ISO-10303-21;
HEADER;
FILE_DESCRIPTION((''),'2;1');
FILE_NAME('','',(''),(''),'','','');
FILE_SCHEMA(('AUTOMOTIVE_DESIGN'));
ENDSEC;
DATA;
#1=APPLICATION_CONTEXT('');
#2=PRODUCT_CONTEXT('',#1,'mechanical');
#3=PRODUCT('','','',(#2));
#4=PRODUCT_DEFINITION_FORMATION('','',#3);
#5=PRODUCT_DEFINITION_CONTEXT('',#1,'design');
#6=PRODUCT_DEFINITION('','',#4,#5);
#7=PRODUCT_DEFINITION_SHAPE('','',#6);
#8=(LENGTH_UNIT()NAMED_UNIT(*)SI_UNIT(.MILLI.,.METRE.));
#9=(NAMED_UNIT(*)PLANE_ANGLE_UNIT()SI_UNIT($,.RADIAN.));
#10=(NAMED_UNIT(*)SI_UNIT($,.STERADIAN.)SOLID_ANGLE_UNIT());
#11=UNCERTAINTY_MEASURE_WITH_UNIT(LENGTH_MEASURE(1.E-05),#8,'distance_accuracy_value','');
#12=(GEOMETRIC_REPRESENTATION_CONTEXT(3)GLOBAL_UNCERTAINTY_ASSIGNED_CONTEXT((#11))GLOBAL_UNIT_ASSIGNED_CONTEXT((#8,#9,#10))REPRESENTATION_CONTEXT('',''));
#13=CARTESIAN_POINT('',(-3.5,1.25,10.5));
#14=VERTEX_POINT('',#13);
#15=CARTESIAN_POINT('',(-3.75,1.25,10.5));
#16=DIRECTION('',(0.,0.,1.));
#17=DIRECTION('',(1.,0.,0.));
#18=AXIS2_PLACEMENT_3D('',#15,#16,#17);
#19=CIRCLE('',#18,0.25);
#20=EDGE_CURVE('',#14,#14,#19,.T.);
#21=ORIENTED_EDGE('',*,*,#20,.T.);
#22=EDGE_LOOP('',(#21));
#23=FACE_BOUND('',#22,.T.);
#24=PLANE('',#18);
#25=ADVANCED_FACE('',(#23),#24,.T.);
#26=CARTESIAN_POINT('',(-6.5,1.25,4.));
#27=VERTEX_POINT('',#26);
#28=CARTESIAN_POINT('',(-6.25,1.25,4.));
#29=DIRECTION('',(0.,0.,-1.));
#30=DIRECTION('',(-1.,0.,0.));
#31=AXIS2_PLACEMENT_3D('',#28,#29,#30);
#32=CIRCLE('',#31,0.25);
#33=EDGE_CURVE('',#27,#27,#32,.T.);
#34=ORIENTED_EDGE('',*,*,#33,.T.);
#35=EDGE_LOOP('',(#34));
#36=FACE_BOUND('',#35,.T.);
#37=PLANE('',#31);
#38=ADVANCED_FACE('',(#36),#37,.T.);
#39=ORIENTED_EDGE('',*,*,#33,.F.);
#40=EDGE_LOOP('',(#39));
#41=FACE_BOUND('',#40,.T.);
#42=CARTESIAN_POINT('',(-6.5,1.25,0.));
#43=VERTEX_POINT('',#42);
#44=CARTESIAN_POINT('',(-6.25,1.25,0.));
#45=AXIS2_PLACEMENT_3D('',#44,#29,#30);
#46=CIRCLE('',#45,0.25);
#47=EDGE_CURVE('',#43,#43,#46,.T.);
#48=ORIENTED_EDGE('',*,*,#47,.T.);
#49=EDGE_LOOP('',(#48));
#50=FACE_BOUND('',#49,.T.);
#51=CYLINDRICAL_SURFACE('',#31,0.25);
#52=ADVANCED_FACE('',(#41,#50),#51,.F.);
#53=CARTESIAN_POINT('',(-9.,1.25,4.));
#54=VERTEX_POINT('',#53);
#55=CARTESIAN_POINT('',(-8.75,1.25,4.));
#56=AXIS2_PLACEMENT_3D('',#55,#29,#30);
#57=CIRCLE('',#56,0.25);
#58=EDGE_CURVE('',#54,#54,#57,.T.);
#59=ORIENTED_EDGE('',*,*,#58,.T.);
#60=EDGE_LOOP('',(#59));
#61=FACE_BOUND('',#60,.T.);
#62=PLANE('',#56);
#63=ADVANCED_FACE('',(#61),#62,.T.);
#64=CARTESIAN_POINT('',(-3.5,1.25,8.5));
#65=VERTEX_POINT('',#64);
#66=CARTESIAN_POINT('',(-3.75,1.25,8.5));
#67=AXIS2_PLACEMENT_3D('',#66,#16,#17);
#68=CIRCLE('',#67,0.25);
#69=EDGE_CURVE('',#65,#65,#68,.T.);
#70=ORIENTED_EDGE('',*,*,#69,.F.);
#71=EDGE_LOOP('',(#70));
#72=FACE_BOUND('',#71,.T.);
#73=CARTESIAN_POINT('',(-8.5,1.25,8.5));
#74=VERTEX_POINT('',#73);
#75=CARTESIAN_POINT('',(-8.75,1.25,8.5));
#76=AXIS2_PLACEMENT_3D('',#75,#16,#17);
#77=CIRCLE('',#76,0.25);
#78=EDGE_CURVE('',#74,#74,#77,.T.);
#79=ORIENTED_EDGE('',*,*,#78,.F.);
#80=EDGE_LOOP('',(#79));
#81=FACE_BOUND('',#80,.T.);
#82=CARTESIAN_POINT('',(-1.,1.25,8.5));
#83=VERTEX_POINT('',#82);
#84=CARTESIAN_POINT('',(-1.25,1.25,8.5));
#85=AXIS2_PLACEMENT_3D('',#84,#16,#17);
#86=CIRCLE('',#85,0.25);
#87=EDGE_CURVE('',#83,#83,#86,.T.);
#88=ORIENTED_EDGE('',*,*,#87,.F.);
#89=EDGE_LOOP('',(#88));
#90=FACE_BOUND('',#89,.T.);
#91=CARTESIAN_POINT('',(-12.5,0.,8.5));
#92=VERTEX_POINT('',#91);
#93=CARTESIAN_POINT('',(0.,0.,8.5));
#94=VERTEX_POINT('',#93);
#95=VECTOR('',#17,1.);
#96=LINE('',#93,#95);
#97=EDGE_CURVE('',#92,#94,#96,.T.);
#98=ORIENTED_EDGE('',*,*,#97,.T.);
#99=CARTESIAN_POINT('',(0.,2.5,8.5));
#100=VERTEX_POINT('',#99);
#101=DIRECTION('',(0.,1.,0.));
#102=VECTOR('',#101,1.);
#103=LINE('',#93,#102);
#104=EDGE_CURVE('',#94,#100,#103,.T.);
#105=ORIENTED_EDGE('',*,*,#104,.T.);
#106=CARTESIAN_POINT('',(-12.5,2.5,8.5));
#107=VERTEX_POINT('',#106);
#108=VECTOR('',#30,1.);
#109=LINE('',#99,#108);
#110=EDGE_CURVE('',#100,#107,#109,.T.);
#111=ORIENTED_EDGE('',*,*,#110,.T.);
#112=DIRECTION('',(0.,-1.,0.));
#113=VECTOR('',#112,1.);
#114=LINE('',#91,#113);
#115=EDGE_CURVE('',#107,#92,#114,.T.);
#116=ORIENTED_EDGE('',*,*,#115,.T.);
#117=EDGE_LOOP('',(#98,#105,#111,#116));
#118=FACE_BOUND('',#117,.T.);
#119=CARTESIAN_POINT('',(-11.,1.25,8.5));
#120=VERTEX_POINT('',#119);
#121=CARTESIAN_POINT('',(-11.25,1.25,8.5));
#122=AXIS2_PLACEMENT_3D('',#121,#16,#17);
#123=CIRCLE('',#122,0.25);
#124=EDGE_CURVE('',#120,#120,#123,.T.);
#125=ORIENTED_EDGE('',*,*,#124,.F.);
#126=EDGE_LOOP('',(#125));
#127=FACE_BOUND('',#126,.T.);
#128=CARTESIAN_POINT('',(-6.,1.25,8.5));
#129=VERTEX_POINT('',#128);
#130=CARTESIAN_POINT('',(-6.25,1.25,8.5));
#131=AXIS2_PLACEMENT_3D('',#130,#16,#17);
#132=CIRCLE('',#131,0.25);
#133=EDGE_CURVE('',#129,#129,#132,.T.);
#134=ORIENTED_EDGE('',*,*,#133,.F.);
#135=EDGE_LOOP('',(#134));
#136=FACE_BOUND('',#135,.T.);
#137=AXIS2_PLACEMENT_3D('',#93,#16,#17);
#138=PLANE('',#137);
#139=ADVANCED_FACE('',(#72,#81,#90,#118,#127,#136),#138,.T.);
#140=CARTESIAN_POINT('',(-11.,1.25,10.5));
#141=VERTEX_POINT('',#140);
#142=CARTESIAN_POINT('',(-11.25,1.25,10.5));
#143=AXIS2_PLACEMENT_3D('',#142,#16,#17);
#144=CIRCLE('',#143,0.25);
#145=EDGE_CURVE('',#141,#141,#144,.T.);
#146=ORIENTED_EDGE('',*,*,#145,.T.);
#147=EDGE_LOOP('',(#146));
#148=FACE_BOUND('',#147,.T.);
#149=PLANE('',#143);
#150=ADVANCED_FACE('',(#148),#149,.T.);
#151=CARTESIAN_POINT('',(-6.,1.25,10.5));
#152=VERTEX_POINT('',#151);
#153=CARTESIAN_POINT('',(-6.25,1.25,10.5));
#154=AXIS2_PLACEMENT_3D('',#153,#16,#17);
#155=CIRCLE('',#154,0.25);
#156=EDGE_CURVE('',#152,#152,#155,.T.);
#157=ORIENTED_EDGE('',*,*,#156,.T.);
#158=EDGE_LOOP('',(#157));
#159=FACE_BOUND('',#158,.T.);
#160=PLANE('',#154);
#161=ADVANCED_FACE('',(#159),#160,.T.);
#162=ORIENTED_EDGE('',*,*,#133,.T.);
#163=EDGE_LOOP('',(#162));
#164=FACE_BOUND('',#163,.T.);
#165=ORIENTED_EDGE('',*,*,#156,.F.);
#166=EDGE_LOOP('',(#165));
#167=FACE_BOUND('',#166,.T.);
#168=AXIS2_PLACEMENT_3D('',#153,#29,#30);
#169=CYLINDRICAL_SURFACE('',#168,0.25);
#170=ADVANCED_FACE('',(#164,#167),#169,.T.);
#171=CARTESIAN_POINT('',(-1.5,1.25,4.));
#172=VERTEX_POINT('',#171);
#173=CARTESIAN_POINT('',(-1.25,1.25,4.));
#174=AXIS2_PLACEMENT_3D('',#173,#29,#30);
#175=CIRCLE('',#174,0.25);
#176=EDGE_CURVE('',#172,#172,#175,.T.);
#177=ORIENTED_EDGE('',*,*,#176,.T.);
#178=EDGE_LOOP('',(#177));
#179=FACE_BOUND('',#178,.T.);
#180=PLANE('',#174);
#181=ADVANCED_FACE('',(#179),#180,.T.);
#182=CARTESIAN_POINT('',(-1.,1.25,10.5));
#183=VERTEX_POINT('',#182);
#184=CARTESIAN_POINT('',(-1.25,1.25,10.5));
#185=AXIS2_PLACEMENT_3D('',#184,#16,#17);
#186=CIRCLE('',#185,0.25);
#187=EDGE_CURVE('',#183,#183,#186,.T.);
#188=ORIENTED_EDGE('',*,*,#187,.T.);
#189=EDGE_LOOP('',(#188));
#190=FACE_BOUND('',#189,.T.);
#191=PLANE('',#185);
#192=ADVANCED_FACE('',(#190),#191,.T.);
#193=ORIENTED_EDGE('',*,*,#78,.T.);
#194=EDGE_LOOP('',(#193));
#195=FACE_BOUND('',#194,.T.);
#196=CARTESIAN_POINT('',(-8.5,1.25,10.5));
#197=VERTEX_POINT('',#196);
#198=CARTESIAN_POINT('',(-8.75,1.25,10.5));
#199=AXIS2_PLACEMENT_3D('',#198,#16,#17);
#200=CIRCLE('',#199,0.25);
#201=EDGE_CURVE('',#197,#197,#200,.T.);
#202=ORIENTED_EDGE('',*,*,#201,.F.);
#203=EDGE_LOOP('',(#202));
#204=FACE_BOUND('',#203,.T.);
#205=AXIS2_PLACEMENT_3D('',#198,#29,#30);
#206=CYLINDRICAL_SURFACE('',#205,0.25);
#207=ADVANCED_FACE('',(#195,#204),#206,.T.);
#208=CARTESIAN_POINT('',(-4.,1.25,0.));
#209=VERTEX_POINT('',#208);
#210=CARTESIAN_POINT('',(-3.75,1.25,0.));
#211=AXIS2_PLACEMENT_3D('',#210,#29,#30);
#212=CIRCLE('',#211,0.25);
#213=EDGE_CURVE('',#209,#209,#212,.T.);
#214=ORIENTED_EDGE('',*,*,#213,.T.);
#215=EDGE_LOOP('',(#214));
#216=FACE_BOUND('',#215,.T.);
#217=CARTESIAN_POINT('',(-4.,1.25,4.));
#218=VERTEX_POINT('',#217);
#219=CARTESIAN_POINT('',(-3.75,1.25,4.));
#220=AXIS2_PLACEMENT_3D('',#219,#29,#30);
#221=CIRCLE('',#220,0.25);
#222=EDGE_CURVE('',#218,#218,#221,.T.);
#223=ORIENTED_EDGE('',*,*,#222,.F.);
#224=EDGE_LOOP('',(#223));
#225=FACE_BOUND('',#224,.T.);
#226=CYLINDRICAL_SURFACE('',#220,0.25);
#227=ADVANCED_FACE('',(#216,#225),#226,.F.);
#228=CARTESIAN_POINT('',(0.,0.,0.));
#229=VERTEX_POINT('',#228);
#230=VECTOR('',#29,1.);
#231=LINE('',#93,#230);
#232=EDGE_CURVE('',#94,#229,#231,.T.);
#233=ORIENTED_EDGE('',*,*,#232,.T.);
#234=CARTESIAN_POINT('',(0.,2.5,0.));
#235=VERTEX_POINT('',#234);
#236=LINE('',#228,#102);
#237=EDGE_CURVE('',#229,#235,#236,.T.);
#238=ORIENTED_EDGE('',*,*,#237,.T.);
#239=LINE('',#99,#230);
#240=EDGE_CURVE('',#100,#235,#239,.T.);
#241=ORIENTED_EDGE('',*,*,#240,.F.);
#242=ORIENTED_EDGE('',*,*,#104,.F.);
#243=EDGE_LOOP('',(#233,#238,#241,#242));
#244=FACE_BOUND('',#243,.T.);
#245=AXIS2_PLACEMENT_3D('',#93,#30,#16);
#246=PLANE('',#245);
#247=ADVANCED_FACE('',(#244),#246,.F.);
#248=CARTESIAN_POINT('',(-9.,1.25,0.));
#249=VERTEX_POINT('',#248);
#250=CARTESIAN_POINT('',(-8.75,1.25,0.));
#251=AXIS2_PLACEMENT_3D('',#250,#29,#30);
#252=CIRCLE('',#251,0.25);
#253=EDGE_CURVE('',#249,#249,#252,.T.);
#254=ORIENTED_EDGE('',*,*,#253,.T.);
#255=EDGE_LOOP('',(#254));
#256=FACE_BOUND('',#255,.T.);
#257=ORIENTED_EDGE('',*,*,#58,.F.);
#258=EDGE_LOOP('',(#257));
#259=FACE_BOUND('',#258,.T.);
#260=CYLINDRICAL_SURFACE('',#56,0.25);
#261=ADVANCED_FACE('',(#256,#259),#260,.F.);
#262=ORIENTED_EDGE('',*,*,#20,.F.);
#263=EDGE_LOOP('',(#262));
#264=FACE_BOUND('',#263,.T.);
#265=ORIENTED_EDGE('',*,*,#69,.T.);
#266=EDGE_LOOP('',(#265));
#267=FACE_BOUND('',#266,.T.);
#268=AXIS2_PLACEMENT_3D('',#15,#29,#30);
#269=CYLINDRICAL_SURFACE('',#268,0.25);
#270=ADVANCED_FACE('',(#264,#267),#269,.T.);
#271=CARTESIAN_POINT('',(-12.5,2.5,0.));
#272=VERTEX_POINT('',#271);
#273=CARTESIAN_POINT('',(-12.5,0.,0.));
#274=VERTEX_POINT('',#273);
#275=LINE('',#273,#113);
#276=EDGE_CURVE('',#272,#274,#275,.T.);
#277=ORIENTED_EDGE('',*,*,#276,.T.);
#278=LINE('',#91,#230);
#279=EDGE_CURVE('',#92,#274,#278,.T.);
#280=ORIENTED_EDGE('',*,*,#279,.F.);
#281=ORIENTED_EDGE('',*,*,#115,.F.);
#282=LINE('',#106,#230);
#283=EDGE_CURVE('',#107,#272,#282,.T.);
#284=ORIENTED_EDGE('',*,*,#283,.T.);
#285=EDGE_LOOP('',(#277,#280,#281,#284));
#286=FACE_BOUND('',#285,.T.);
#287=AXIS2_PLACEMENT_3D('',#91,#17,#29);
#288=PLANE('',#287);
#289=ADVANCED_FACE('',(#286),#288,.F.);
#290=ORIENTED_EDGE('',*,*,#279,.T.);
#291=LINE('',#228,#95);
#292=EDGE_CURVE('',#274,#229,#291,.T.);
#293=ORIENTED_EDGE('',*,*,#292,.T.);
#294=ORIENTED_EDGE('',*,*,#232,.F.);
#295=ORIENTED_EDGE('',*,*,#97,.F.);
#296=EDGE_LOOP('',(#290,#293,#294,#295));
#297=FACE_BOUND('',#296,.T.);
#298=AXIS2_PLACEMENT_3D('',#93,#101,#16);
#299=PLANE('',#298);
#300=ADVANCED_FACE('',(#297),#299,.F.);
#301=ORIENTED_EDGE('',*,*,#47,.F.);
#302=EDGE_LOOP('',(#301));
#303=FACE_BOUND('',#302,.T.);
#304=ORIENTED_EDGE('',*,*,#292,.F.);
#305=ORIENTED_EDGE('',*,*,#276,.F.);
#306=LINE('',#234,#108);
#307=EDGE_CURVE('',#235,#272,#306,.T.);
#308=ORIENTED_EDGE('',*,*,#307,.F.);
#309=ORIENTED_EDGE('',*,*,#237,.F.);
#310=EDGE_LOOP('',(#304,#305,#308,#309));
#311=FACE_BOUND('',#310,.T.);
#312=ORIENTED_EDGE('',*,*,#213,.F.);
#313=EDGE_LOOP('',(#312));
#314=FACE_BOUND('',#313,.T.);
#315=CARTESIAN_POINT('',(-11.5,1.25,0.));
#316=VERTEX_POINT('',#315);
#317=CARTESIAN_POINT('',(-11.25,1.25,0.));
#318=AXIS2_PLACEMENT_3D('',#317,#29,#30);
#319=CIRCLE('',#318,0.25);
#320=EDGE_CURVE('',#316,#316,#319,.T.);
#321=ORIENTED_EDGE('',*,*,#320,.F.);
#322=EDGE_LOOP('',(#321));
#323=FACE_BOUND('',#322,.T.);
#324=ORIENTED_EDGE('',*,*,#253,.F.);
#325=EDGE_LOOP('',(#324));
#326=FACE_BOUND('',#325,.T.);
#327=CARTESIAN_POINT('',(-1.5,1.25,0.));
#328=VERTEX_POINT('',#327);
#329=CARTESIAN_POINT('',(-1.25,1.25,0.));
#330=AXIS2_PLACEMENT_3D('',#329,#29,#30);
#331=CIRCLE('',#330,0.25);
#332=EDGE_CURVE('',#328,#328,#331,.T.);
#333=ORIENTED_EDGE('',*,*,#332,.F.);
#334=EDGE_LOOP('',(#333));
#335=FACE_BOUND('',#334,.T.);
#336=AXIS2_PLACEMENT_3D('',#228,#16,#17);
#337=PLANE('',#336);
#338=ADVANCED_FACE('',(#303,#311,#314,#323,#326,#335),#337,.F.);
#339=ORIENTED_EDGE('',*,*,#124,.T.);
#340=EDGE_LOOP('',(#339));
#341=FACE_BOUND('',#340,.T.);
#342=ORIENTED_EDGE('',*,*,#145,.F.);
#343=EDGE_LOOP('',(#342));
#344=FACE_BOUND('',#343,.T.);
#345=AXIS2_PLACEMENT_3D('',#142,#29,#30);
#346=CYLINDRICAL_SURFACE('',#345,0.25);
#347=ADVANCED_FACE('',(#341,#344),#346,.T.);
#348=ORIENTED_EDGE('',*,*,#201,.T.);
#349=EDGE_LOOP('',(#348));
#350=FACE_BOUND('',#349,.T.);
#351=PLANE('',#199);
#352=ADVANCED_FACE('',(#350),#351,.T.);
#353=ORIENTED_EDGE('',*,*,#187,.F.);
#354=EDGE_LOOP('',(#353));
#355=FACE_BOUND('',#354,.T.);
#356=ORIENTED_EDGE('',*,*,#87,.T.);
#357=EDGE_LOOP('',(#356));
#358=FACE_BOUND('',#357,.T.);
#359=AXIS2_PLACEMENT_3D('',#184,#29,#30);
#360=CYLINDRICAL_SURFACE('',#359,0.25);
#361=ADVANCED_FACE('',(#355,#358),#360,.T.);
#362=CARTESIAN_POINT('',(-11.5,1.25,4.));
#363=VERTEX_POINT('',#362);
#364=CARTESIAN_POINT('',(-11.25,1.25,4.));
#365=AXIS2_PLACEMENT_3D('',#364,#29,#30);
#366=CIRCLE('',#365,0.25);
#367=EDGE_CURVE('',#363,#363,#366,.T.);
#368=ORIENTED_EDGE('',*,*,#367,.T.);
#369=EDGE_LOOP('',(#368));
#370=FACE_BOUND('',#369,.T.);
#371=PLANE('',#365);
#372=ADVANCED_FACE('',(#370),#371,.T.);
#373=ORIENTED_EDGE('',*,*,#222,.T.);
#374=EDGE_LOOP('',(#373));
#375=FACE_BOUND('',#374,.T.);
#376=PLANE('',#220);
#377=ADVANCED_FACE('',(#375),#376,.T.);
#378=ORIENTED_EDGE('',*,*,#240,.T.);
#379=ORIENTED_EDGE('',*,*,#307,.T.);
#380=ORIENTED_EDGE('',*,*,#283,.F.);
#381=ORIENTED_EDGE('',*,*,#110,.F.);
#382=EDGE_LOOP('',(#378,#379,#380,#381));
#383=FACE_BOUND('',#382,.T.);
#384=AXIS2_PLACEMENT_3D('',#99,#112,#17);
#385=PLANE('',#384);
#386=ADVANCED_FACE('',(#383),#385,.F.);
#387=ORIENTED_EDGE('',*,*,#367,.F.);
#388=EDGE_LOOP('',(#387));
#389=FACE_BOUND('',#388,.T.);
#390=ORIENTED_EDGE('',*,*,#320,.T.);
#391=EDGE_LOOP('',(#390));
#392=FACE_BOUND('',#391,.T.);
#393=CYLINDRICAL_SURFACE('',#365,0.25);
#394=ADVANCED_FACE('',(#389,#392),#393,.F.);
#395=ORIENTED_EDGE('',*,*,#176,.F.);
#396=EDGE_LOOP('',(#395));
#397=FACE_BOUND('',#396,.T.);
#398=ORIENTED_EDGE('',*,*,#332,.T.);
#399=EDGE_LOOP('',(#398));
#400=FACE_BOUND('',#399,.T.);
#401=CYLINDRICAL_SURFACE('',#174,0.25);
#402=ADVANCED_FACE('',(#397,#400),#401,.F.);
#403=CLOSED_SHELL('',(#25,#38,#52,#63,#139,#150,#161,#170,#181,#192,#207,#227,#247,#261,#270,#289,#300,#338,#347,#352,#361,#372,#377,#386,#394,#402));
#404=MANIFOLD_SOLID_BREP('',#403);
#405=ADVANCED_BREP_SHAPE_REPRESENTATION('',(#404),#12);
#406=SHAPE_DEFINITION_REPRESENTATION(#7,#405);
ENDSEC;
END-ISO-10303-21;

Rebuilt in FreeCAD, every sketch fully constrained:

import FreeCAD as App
import Part
import Sketcher
Q = App.Units.Quantity


def add_polygon(sketch, points):
    """Adds a closed chain of lines whose ends are joined by coincident constraints."""
    first, n = sketch.GeometryCount, len(points)
    for a, b in zip(points, points[1:] + points[:1]):
        sketch.addGeometry(Part.LineSegment(App.Vector(*a, 0), App.Vector(*b, 0)), False)
    for i in range(n):
        sketch.addConstraint(Sketcher.Constraint("Coincident", first + i, 2, first + (i + 1) % n, 1))

doc = App.newDocument("Part")
body = doc.addObject("PartDesign::Body", "Body")

sketch1 = doc.addObject("Sketcher::SketchObject", "Sketch")
body.addObject(sketch1)
sketch1.AttachmentSupport = (doc.XY_Plane, [""])
sketch1.MapMode = "FlatFace"
add_polygon(sketch1, [(-2.5, 2.5), (-2.5, 0), (0, 0), (0, 2.5)])
sketch1.addConstraint([
    Sketcher.Constraint("Vertical", 0),
    Sketcher.Constraint("Horizontal", 1),
    Sketcher.Constraint("Vertical", 2),
    Sketcher.Constraint("Horizontal", 3),
    Sketcher.Constraint("Coincident", 1, 2, -1, 1),
    Sketcher.Constraint("Equal", 3, 0),
    Sketcher.Constraint("DistanceX", 1, 1, 1, 2, Q("2.5 mm")),
])
pad1 = doc.addObject("PartDesign::Pad", "Pad")
body.addObject(pad1)
pad1.Profile = sketch1
pad1.Length = 8.5

sketch2 = doc.addObject("Sketcher::SketchObject", "Sketch001")
body.addObject(sketch2)
sketch2.AttachmentSupport = (doc.XY_Plane, [""])
sketch2.MapMode = "FlatFace"
sketch2.AttachmentOffset = App.Placement(App.Vector(0, 0, 8.5), App.Rotation())
sketch2.addGeometry(Part.Circle(App.Vector(-1.25, 1.25, 0), App.Vector(0, 0, 1), 0.25), False)
sketch2.addConstraint([
    Sketcher.Constraint("Diameter", 0, Q("0.5 mm")),
    Sketcher.Constraint("DistanceX", 0, 3, -1, 1, Q("1.25 mm")),
    Sketcher.Constraint("DistanceY", -1, 1, 0, 3, Q("1.25 mm")),
])
pad2 = doc.addObject("PartDesign::Pad", "Pad001")
body.addObject(pad2)
pad2.Profile = sketch2
pad2.Length = 2

sketch3 = doc.addObject("Sketcher::SketchObject", "Sketch002")
body.addObject(sketch3)
sketch3.AttachmentSupport = (doc.XY_Plane, [""])
sketch3.MapMode = "FlatFace"
sketch3.addGeometry(Part.Circle(App.Vector(-1.25, 1.25, 0), App.Vector(0, 0, 1), 0.25), False)
sketch3.addConstraint([
    Sketcher.Constraint("Diameter", 0, Q("0.5 mm")),
    Sketcher.Constraint("DistanceX", 0, 3, -1, 1, Q("1.25 mm")),
    Sketcher.Constraint("DistanceY", -1, 1, 0, 3, Q("1.25 mm")),
])
pocket1 = doc.addObject("PartDesign::Pocket", "Pocket")
body.addObject(pocket1)
pocket1.Profile = sketch3
pocket1.Length = 4
pocket1.Reversed = True
doc.recompute()

linearpattern = doc.addObject("PartDesign::LinearPattern", "LinearPattern")
body.addObject(linearpattern)
linearpattern.Originals = [pad1, pad2, pocket1]
linearpattern.Direction = (doc.X_Axis, [""])
linearpattern.Mode = "offset"
linearpattern.Offset = 2.5
linearpattern.Occurrences = 5
linearpattern.Reversed = True
body.Tip = linearpattern

doc.recompute()
